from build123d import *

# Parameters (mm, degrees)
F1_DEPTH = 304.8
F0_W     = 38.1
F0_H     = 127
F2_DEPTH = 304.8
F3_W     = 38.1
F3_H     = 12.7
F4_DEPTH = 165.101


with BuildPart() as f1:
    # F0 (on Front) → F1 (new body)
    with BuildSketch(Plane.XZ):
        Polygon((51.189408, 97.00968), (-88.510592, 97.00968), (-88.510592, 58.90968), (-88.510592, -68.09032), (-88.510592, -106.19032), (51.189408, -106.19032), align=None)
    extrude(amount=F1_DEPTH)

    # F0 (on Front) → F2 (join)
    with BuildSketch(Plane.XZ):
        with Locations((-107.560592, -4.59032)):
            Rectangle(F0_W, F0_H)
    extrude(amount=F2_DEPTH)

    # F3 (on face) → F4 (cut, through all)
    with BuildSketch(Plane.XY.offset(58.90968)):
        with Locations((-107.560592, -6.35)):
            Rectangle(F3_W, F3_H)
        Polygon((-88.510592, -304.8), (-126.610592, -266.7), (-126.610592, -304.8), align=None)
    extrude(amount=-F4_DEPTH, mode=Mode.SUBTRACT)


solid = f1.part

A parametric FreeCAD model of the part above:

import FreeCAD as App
import Part
import Sketcher
from FreeCAD import Vector
Q = App.Units.Quantity

doc = App.newDocument("Part")
params = doc.addObject("Spreadsheet::Sheet", "Params")
for row, (alias, value) in enumerate([
    ("sketch1_height", "8 in"),
    ("sketch1_width", "5.5 in"),
    ("pad1_length", "12 in"),
    ("sketch2_height", "5 in"),
    ("sketch2_width", "1.5 in"),
    ("pad2_length", "12 in"),
    ("sketch3_width", "1.5 in"),
    ("sketch3_height", "0.5 in"),
], start=1):
    params.set(f"A{row}", alias)
    params.set(f"B{row}", "=" + value)
    params.setAlias(f"B{row}", alias)

body = doc.addObject("PartDesign::Body", "Body")

# Sketch on XZ plane
sketch1 = body.newObject("Sketcher::SketchObject", "Sketch")
sketch1.AttachmentSupport = (doc.getObject("XZ_Plane"), [""])
sketch1.MapMode = "FlatFace"
sketch1.addGeometry(Part.LineSegment(Vector(51.189408, 97.00968, 0), Vector(-88.510592, 97.00968, 0)), False)
sketch1.addGeometry(Part.LineSegment(Vector(-88.510592, 97.00968, 0), Vector(-88.510592, -106.19032, 0)), False)
sketch1.addGeometry(Part.LineSegment(Vector(-88.510592, -106.19032, 0), Vector(51.189408, -106.19032, 0)), False)
sketch1.addGeometry(Part.LineSegment(Vector(51.189408, -106.19032, 0), Vector(51.189408, 97.00968, 0)), False)
sketch1.addConstraint(Sketcher.Constraint("Coincident", 0, 2, 1, 1))
sketch1.addConstraint(Sketcher.Constraint("Coincident", 1, 2, 2, 1))
sketch1.addConstraint(Sketcher.Constraint("Coincident", 2, 2, 3, 1))
sketch1.addConstraint(Sketcher.Constraint("Coincident", 3, 2, 0, 1))
sketch1.addConstraint(Sketcher.Constraint("Horizontal", 0))
sketch1.addConstraint(Sketcher.Constraint("Vertical", 1))
sketch1.addConstraint(Sketcher.Constraint("Horizontal", 2))
sketch1.addConstraint(Sketcher.Constraint("Vertical", 3))
sketch1.addConstraint(Sketcher.Constraint("DistanceY", 1, 2, 1, 1, Q("8 in")))
sketch1.addConstraint(Sketcher.Constraint("DistanceX", 0, 2, 0, 1, Q("5.5 in")))
sketch1.addConstraint(Sketcher.Constraint("DistanceY", -1, 1, 0, 2, Q("97.00968 mm")))
sketch1.addConstraint(Sketcher.Constraint("DistanceX", 0, 2, -1, 1, Q("88.510592 mm")))
sketch1.setExpression("Constraints[8]", "Params.sketch1_height")
sketch1.setExpression("Constraints[9]", "Params.sketch1_width")
pad1 = body.newObject("PartDesign::Pad", "Pad")
pad1.Profile = sketch1
pad1.setExpression("Length", "Params.pad1_length")

# Sketch on XZ plane
sketch2 = body.newObject("Sketcher::SketchObject", "Sketch001")
sketch2.AttachmentSupport = (doc.getObject("XZ_Plane"), [""])
sketch2.MapMode = "FlatFace"
sketch2.addGeometry(Part.LineSegment(Vector(-126.610592, 58.90968, 0), Vector(-126.610592, -68.09032, 0)), False)
sketch2.addGeometry(Part.LineSegment(Vector(-126.610592, -68.09032, 0), Vector(-88.510592, -68.09032, 0)), False)
sketch2.addGeometry(Part.LineSegment(Vector(-88.510592, -68.09032, 0), Vector(-88.510592, 58.90968, 0)), False)
sketch2.addGeometry(Part.LineSegment(Vector(-88.510592, 58.90968, 0), Vector(-126.610592, 58.90968, 0)), False)
sketch2.addConstraint(Sketcher.Constraint("Coincident", 0, 2, 1, 1))
sketch2.addConstraint(Sketcher.Constraint("Coincident", 1, 2, 2, 1))
sketch2.addConstraint(Sketcher.Constraint("Coincident", 2, 2, 3, 1))
sketch2.addConstraint(Sketcher.Constraint("Coincident", 3, 2, 0, 1))
sketch2.addConstraint(Sketcher.Constraint("Vertical", 0))
sketch2.addConstraint(Sketcher.Constraint("Horizontal", 1))
sketch2.addConstraint(Sketcher.Constraint("Vertical", 2))
sketch2.addConstraint(Sketcher.Constraint("Horizontal", 3))
sketch2.addConstraint(Sketcher.Constraint("DistanceY", 0, 2, 0, 1, Q("5 in")))
sketch2.addConstraint(Sketcher.Constraint("DistanceX", 1, 1, 1, 2, Q("1.5 in")))
sketch2.addConstraint(Sketcher.Constraint("DistanceX", 0, 2, -1, 1, Q("126.610592 mm")))
sketch2.addConstraint(Sketcher.Constraint("DistanceY", 0, 2, -1, 1, Q("68.09032 mm")))
sketch2.setExpression("Constraints[8]", "Params.sketch2_height")
sketch2.setExpression("Constraints[9]", "Params.sketch2_width")
pad2 = body.newObject("PartDesign::Pad", "Pad001")
pad2.Profile = sketch2
pad2.setExpression("Length", "Params.pad2_length")

# Sketch on XY plane
sketch3 = body.newObject("Sketcher::SketchObject", "Sketch002")
sketch3.AttachmentSupport = (doc.getObject("XY_Plane"), [""])
sketch3.MapMode = "FlatFace"
sketch3.AttachmentOffset = App.Placement(Vector(0, 0, 58.90968), App.Rotation())
sketch3.addGeometry(Part.LineSegment(Vector(-126.610592, 0, 0), Vector(-126.610592, -12.7, 0)), False)
sketch3.addGeometry(Part.LineSegment(Vector(-126.610592, -12.7, 0), Vector(-88.510592, -12.7, 0)), False)
sketch3.addGeometry(Part.LineSegment(Vector(-88.510592, -12.7, 0), Vector(-88.510592, 0, 0)), False)
sketch3.addGeometry(Part.LineSegment(Vector(-88.510592, 0, 0), Vector(-126.610592, 0, 0)), False)
sketch3.addGeometry(Part.LineSegment(Vector(-88.510592, -304.8, 0), Vector(-126.610592, -266.7, 0)), False)
sketch3.addGeometry(Part.LineSegment(Vector(-126.610592, -266.7, 0), Vector(-126.610592, -304.8, 0)), False)
sketch3.addGeometry(Part.LineSegment(Vector(-126.610592, -304.8, 0), Vector(-88.510592, -304.8, 0)), False)
sketch3.addConstraint(Sketcher.Constraint("Coincident", 0, 2, 1, 1))
sketch3.addConstraint(Sketcher.Constraint("Coincident", 1, 2, 2, 1))
sketch3.addConstraint(Sketcher.Constraint("Coincident", 2, 2, 3, 1))
sketch3.addConstraint(Sketcher.Constraint("Coincident", 3, 2, 0, 1))
sketch3.addConstraint(Sketcher.Constraint("Coincident", 4, 2, 5, 1))
sketch3.addConstraint(Sketcher.Constraint("Coincident", 5, 2, 6, 1))
sketch3.addConstraint(Sketcher.Constraint("Coincident", 6, 2, 4, 1))
sketch3.addConstraint(Sketcher.Constraint("Vertical", 0))
sketch3.addConstraint(Sketcher.Constraint("Horizontal", 1))
sketch3.addConstraint(Sketcher.Constraint("Vertical", 2))
sketch3.addConstraint(Sketcher.Constraint("Horizontal", 3))
sketch3.addConstraint(Sketcher.Constraint("Vertical", 5))
sketch3.addConstraint(Sketcher.Constraint("Horizontal", 6))
sketch3.addConstraint(Sketcher.Constraint("PointOnObject", 2, 2, -1))
sketch3.addConstraint(Sketcher.Constraint("Vertical", 3, 2, 4, 2))
sketch3.addConstraint(Sketcher.Constraint("Vertical", 2, 2, 6, 2))
sketch3.addConstraint(Sketcher.Constraint("Equal", 6, 5))
sketch3.addConstraint(Sketcher.Constraint("DistanceX", 1, 1, 1, 2, Q("1.5 in")))
sketch3.addConstraint(Sketcher.Constraint("DistanceY", 0, 2, 0, 1, Q("0.5 in")))
sketch3.addConstraint(Sketcher.Constraint("DistanceY", 5, 2, -1, 1, Q("12 in")))
sketch3.addConstraint(Sketcher.Constraint("DistanceX", 0, 2, -1, 1, Q("126.610592 mm")))
sketch3.setExpression("Constraints[17]", "Params.sketch3_width")
sketch3.setExpression("Constraints[18]", "Params.sketch3_height")
pocket1 = body.newObject("PartDesign::Pocket", "Pocket")
pocket1.Profile = sketch3
pocket1.Type = "ThroughAll"

doc.recompute()
